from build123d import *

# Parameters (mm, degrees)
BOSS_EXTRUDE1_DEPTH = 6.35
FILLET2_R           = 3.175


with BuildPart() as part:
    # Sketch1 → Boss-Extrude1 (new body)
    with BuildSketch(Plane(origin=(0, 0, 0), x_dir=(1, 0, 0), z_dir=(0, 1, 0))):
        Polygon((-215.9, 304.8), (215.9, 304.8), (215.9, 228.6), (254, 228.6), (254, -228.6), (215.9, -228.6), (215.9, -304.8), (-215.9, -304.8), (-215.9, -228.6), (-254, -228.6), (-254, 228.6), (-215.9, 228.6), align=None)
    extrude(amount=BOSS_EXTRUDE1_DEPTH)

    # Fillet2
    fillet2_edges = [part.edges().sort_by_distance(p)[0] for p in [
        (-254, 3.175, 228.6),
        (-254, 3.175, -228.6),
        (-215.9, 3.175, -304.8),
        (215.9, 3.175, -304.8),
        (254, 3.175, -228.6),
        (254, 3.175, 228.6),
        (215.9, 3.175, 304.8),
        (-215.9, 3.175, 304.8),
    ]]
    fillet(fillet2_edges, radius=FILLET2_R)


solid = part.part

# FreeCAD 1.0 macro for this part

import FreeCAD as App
import Part
import Sketcher

V = App.Vector
Q = App.Units.Quantity


def edges_at(feature, points):
    """Names of the edges that pass closest to the given points."""
    edges = feature.Shape.Edges
    near = lambda p: min(range(len(edges)), key=lambda i: edges[i].distToShape(Part.Vertex(*p))[0])
    return sorted({f"Edge{near(p) + 1}" for p in points})

doc = App.newDocument("Part")
body = doc.addObject("PartDesign::Body", "Body")

# Sketch on XZ plane
sketch1 = body.newObject("Sketcher::SketchObject", "Sketch")
sketch1.AttachmentSupport = (doc.getObject("XZ_Plane"), [""])
sketch1.MapMode = "FlatFace"
sketch1.addGeometry(Part.LineSegment(V(215.9, -304.8, 0), V(-215.9, -304.8, 0)), False)
sketch1.addGeometry(Part.LineSegment(V(-215.9, -304.8, 0), V(-215.9, -228.6, 0)), False)
sketch1.addGeometry(Part.LineSegment(V(-215.9, -228.6, 0), V(-254, -228.6, 0)), False)
sketch1.addGeometry(Part.LineSegment(V(-254, -228.6, 0), V(-254, 228.6, 0)), False)
sketch1.addGeometry(Part.LineSegment(V(-254, 228.6, 0), V(-215.9, 228.6, 0)), False)
sketch1.addGeometry(Part.LineSegment(V(-215.9, 228.6, 0), V(-215.9, 304.8, 0)), False)
sketch1.addGeometry(Part.LineSegment(V(-215.9, 304.8, 0), V(215.9, 304.8, 0)), False)
sketch1.addGeometry(Part.LineSegment(V(215.9, 304.8, 0), V(215.9, 228.6, 0)), False)
sketch1.addGeometry(Part.LineSegment(V(215.9, 228.6, 0), V(254, 228.6, 0)), False)
sketch1.addGeometry(Part.LineSegment(V(254, 228.6, 0), V(254, -228.6, 0)), False)
sketch1.addGeometry(Part.LineSegment(V(254, -228.6, 0), V(215.9, -228.6, 0)), False)
sketch1.addGeometry(Part.LineSegment(V(215.9, -228.6, 0), V(215.9, -304.8, 0)), False)
sketch1.addConstraint(Sketcher.Constraint("Coincident", 0, 2, 1, 1))
sketch1.addConstraint(Sketcher.Constraint("Coincident", 1, 2, 2, 1))
sketch1.addConstraint(Sketcher.Constraint("Coincident", 2, 2, 3, 1))
sketch1.addConstraint(Sketcher.Constraint("Coincident", 3, 2, 4, 1))
sketch1.addConstraint(Sketcher.Constraint("Coincident", 4, 2, 5, 1))
sketch1.addConstraint(Sketcher.Constraint("Coincident", 5, 2, 6, 1))
sketch1.addConstraint(Sketcher.Constraint("Coincident", 6, 2, 7, 1))
sketch1.addConstraint(Sketcher.Constraint("Coincident", 7, 2, 8, 1))
sketch1.addConstraint(Sketcher.Constraint("Coincident", 8, 2, 9, 1))
sketch1.addConstraint(Sketcher.Constraint("Coincident", 9, 2, 10, 1))
sketch1.addConstraint(Sketcher.Constraint("Coincident", 10, 2, 11, 1))
sketch1.addConstraint(Sketcher.Constraint("Coincident", 11, 2, 0, 1))
sketch1.addConstraint(Sketcher.Constraint("Horizontal", 0))
sketch1.addConstraint(Sketcher.Constraint("Vertical", 1))
sketch1.addConstraint(Sketcher.Constraint("Horizontal", 2))
sketch1.addConstraint(Sketcher.Constraint("Vertical", 3))
sketch1.addConstraint(Sketcher.Constraint("Horizontal", 4))
sketch1.addConstraint(Sketcher.Constraint("Vertical", 5))
sketch1.addConstraint(Sketcher.Constraint("Horizontal", 6))
sketch1.addConstraint(Sketcher.Constraint("Vertical", 7))
sketch1.addConstraint(Sketcher.Constraint("Horizontal", 8))
sketch1.addConstraint(Sketcher.Constraint("Vertical", 9))
sketch1.addConstraint(Sketcher.Constraint("Horizontal", 10))
sketch1.addConstraint(Sketcher.Constraint("Vertical", 11))
sketch1.addConstraint(Sketcher.Constraint("Symmetric", 0, 2, 6, 2, -1, 1))
sketch1.addConstraint(Sketcher.Constraint("Symmetric", 2, 2, 8, 2, -1, 1))
sketch1.addConstraint(Sketcher.Constraint("Symmetric", 4, 2, 10, 2, -1, 1))
sketch1.addConstraint(Sketcher.Constraint("Symmetric", 4, 2, 7, 2, -2))
sketch1.addConstraint(Sketcher.Constraint("DistanceX", 0, 2, 0, 1, Q("17 in")))
sketch1.addConstraint(Sketcher.Constraint("DistanceY", 1, 1, 1, 2, Q("3 in")))
sketch1.addConstraint(Sketcher.Constraint("DistanceY", 3, 1, 3, 2, Q("18 in")))
sketch1.addConstraint(Sketcher.Constraint("DistanceX", 2, 2, 2, 1, Q("1.5 in")))
pad1 = body.newObject("PartDesign::Pad", "Pad")
pad1.Profile = sketch1
pad1.Length = Q("0.25 in")
pad1.Reversed = True
doc.recompute()

fillet = body.newObject("PartDesign::Fillet", "Fillet")
fillet.Base = (pad1, edges_at(pad1, [
    (-254, 3.175, 228.6),
    (-254, 3.175, -228.6),
    (-215.9, 3.175, -304.8),
    (215.9, 3.175, -304.8),
    (254, 3.175, -228.6),
    (254, 3.175, 228.6),
    (215.9, 3.175, 304.8),
    (-215.9, 3.175, 304.8),
]))
fillet.Radius = Q("0.125 in")

doc.recompute()
